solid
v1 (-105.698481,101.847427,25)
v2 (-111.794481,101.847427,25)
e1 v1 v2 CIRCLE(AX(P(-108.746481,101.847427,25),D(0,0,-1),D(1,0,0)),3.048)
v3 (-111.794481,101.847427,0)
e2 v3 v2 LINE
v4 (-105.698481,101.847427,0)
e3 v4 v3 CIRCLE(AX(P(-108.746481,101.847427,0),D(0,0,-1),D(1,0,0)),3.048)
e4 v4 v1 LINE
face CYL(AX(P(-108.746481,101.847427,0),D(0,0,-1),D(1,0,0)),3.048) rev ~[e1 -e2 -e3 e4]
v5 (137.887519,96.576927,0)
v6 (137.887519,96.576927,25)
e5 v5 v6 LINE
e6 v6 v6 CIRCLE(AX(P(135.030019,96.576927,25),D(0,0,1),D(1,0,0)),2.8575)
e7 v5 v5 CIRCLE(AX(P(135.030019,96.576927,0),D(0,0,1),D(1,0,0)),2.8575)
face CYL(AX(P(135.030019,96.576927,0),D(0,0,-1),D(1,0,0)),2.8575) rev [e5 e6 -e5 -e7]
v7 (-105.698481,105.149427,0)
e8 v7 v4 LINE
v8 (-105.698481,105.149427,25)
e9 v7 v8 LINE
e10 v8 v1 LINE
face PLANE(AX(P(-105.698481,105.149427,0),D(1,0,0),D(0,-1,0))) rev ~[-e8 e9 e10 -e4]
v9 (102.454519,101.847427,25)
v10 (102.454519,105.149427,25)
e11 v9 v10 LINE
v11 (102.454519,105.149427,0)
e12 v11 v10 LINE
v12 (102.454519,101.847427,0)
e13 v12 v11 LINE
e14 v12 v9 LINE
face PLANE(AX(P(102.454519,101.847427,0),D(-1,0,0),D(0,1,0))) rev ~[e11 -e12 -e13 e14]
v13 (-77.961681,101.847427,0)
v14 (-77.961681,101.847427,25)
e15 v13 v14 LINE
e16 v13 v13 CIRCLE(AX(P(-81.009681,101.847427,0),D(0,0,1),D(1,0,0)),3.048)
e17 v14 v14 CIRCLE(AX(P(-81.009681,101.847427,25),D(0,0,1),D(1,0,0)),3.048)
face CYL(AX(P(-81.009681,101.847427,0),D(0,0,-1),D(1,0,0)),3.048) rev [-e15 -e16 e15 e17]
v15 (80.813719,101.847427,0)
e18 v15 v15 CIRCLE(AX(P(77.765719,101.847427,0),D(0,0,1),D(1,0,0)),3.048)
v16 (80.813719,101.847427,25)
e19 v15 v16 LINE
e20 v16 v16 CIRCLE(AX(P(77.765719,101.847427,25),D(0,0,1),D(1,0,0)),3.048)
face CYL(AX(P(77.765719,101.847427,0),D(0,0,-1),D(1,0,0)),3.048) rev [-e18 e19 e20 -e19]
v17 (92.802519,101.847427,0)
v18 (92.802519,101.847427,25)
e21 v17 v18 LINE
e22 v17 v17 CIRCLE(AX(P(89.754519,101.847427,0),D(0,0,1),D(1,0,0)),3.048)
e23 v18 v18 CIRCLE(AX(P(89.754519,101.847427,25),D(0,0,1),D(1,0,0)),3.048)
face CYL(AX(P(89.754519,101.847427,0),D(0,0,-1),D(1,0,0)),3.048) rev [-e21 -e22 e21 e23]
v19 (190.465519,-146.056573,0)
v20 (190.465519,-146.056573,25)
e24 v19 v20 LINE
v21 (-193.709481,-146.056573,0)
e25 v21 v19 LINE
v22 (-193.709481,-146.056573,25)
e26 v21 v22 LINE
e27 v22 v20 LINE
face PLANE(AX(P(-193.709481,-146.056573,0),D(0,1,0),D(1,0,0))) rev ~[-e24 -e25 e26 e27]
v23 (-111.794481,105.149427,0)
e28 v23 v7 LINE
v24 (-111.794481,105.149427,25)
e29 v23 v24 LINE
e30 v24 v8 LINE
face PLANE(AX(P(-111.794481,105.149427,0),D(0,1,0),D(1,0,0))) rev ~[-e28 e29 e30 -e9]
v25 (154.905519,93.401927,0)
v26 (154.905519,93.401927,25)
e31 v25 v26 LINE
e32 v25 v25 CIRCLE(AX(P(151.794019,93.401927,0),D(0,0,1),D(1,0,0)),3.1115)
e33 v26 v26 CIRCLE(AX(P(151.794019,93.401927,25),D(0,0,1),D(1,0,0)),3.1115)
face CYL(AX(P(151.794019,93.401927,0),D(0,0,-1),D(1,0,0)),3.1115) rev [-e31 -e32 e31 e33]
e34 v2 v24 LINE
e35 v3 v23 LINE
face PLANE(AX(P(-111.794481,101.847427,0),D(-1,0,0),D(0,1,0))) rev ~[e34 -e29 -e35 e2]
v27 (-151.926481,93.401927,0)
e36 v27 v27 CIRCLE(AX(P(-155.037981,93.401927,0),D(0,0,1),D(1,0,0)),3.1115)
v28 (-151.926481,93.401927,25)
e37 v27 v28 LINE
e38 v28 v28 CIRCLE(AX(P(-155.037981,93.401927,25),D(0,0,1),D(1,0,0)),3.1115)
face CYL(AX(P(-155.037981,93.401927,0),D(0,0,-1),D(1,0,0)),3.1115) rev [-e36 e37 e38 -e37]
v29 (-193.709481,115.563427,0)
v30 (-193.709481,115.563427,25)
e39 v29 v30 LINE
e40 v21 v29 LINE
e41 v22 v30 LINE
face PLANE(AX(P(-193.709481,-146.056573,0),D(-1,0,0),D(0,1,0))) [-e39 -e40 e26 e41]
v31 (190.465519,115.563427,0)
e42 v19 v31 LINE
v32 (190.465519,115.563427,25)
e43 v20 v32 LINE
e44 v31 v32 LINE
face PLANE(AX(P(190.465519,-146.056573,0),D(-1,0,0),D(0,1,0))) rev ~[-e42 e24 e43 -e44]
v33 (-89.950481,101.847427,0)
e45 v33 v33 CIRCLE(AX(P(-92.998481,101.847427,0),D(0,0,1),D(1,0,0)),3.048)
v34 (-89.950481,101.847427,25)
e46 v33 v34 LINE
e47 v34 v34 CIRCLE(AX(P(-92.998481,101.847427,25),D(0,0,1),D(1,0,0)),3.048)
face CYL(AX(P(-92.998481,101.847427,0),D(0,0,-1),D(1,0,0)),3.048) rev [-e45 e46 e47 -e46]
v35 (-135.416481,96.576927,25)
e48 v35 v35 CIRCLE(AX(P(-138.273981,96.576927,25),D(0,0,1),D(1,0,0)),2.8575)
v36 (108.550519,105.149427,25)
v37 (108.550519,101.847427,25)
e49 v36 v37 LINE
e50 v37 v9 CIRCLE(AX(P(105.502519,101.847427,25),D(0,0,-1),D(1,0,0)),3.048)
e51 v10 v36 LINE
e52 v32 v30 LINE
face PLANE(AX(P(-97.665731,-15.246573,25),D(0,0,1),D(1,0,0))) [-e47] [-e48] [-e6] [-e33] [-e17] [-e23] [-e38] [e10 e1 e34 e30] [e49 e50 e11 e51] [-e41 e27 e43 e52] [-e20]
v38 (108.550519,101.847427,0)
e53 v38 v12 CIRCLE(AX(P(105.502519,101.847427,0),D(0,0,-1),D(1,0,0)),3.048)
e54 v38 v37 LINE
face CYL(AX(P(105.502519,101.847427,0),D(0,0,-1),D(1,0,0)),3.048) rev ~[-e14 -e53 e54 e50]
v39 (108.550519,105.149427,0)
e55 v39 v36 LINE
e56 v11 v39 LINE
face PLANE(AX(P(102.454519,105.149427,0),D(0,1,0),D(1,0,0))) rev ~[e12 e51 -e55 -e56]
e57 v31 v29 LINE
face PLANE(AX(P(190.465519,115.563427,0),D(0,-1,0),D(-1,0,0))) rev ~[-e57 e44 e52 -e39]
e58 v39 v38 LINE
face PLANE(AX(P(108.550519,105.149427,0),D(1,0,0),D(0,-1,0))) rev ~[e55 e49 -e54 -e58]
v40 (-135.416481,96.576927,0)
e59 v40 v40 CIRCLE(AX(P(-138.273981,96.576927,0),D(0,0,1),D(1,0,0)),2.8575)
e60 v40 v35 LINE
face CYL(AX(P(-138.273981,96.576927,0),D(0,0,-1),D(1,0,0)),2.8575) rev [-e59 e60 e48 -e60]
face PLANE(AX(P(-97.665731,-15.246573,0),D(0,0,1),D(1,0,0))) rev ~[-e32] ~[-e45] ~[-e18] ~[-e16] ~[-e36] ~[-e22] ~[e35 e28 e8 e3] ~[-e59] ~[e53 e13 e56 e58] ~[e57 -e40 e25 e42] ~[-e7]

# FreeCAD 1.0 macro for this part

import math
import FreeCAD as App
import Part
import Sketcher
from FreeCAD import Vector
Q = App.Units.Quantity


def add_polygon(sketch, points):
    """Adds a closed chain of lines whose ends are joined by coincident constraints."""
    first, n = sketch.GeometryCount, len(points)
    for a, b in zip(points, points[1:] + points[:1]):
        sketch.addGeometry(Part.LineSegment(App.Vector(*a, 0), App.Vector(*b, 0)), False)
    for i in range(n):
        sketch.addConstraint(Sketcher.Constraint("Coincident", first + i, 2, first + (i + 1) % n, 1))

doc = App.newDocument("Part")
body = doc.addObject("PartDesign::Body", "Body")

sketch1 = body.newObject("Sketcher::SketchObject", "Sketch")
sketch1.AttachmentSupport = (doc.getObject("XY_Plane"), [""])
sketch1.MapMode = "FlatFace"
add_polygon(sketch1, [(-193.7, 115.6), (-193.7, -146.1), (190.5, -146.1), (190.5, 115.6)])
sketch1.addGeometry(Part.Circle(Vector(-155, 93.4, 0), Vector(0, 0, 1), 3.1), False)
sketch1.addGeometry(Part.Circle(Vector(-138.3, 96.6, 0), Vector(0, 0, 1), 2.9), False)
sketch1.addGeometry(Part.Circle(Vector(151.8, 93.4, 0), Vector(0, 0, 1), 3.1), False)
sketch1.addGeometry(Part.Circle(Vector(135, 96.6, 0), Vector(0, 0, 1), 2.9), False)
sketch1.addGeometry(Part.LineSegment(Vector(-111.8, 105.1, 0), Vector(-105.7, 105.1, 0)), False)
sketch1.addGeometry(Part.LineSegment(Vector(-105.7, 105.1, 0), Vector(-105.7, 101.8, 0)), False)
sketch1.addGeometry(Part.ArcOfCircle(Part.Circle(Vector(-108.7, 101.8, 0), Vector(0, 0, 1), 3), math.radians(180), math.radians(360)), False)
sketch1.addGeometry(Part.LineSegment(Vector(-111.8, 101.8, 0), Vector(-111.8, 105.1, 0)), False)
sketch1.addGeometry(Part.Circle(Vector(-93, 101.8, 0), Vector(0, 0, 1), 3), False)
sketch1.addGeometry(Part.Circle(Vector(-81, 101.8, 0), Vector(0, 0, 1), 3), False)
sketch1.addGeometry(Part.Circle(Vector(77.8, 101.8, 0), Vector(0, 0, 1), 3), False)
sketch1.addGeometry(Part.Circle(Vector(89.8, 101.8, 0), Vector(0, 0, 1), 3), False)
sketch1.addGeometry(Part.LineSegment(Vector(108.6, 105.1, 0), Vector(108.6, 101.8, 0)), False)
sketch1.addGeometry(Part.ArcOfCircle(Part.Circle(Vector(105.5, 101.8, 0), Vector(0, 0, 1), 3), math.radians(180), math.radians(360)), False)
sketch1.addGeometry(Part.LineSegment(Vector(102.5, 101.8, 0), Vector(102.5, 105.1, 0)), False)
sketch1.addGeometry(Part.LineSegment(Vector(102.5, 105.1, 0), Vector(108.6, 105.1, 0)), False)
sketch1.addConstraint([
    Sketcher.Constraint("Coincident", 8, 2, 9, 1),
    Sketcher.Constraint("Tangent", 9, 2, 10, 2),
    Sketcher.Constraint("Tangent", 10, 1, 11, 1),
    Sketcher.Constraint("Coincident", 11, 2, 8, 1),
    Sketcher.Constraint("Tangent", 16, 2, 17, 2),
    Sketcher.Constraint("Tangent", 17, 1, 18, 1),
    Sketcher.Constraint("Coincident", 18, 2, 19, 1),
    Sketcher.Constraint("Coincident", 19, 2, 16, 1),
    Sketcher.Constraint("Vertical", 0),
    Sketcher.Constraint("Horizontal", 1),
    Sketcher.Constraint("Vertical", 2),
    Sketcher.Constraint("Horizontal", 3),
    Sketcher.Constraint("Horizontal", 8),
    Sketcher.Constraint("Vertical", 9),
    Sketcher.Constraint("Vertical", 11),
    Sketcher.Constraint("Vertical", 16),
    Sketcher.Constraint("Vertical", 18),
    Sketcher.Constraint("Horizontal", 19),
    Sketcher.Constraint("Equal", 4, 6),
    Sketcher.Constraint("Equal", 5, 7),
    Sketcher.Constraint("Equal", 10, 12),
    Sketcher.Constraint("Equal", 12, 13),
    Sketcher.Constraint("Equal", 13, 14),
    Sketcher.Constraint("Equal", 14, 15),
    Sketcher.Constraint("Equal", 15, 17),
    Sketcher.Constraint("Horizontal", 4, 3, 6, 3),
    Sketcher.Constraint("Horizontal", 5, 3, 7, 3),
    Sketcher.Constraint("Horizontal", 10, 3, 12, 3),
    Sketcher.Constraint("Horizontal", 12, 3, 13, 3),
    Sketcher.Constraint("Horizontal", 13, 3, 14, 3),
    Sketcher.Constraint("Horizontal", 14, 3, 15, 3),
    Sketcher.Constraint("Horizontal", 15, 3, 17, 3),
    Sketcher.Constraint("Horizontal", 11, 2, 18, 2),
    Sketcher.Constraint("Diameter", 12, Q("0.24 in")),
    Sketcher.Constraint("Diameter", 4, Q("0.245 in")),
    Sketcher.Constraint("Diameter", 5, Q("0.225 in")),
    Sketcher.Constraint("DistanceY", 0, 2, 0, 1, Q("10.3 in")),
    Sketcher.Constraint("DistanceY", 9, 2, 9, 1, Q("0.13 in")),
    Sketcher.Constraint("DistanceX", 8, 2, 12, 3, Q("0.5 in")),
    Sketcher.Constraint("DistanceX", 15, 3, 17, 1, Q("0.5 in")),
    Sketcher.Constraint("DistanceX", 1, 1, 1, 2, Q("15.125 in")),
    Sketcher.Constraint("DistanceX", 4, 3, 5, 3, Q("0.66 in")),
    Sketcher.Constraint("DistanceX", 5, 3, 6, 3, Q("11.42 in")),
    Sketcher.Constraint("DistanceX", 7, 3, 6, 3, Q("0.66 in")),
    Sketcher.Constraint("DistanceY", 0, 2, 10, 3, Q("9.76 in")),
    Sketcher.Constraint("DistanceY", 4, 3, 5, 3, Q("0.125 in")),
    Sketcher.Constraint("DistanceX", 12, 3, 13, 3, Q("0.472 in")),
    Sketcher.Constraint("DistanceX", 13, 3, 14, 3, Q("6.251 in")),
    Sketcher.Constraint("DistanceX", 14, 3, 15, 3, Q("0.472 in")),
    Sketcher.Constraint("DistanceX", 0, 2, 10, 3, Q("3.345 in")),
    Sketcher.Constraint("DistanceX", 5, 3, 10, 3, Q("1.1625 in")),
    Sketcher.Constraint("DistanceY", 5, 3, 10, 3, Q("0.2075 in")),
    Sketcher.Constraint("DistanceX", 4, 3, -1, 1, Q("155.037981 mm")),
    Sketcher.Constraint("DistanceY", -1, 1, 4, 3, Q("93.401927 mm")),
])
pad1 = body.newObject("PartDesign::Pad", "Pad")
pad1.Profile = sketch1
pad1.Length = 25

doc.recompute()
